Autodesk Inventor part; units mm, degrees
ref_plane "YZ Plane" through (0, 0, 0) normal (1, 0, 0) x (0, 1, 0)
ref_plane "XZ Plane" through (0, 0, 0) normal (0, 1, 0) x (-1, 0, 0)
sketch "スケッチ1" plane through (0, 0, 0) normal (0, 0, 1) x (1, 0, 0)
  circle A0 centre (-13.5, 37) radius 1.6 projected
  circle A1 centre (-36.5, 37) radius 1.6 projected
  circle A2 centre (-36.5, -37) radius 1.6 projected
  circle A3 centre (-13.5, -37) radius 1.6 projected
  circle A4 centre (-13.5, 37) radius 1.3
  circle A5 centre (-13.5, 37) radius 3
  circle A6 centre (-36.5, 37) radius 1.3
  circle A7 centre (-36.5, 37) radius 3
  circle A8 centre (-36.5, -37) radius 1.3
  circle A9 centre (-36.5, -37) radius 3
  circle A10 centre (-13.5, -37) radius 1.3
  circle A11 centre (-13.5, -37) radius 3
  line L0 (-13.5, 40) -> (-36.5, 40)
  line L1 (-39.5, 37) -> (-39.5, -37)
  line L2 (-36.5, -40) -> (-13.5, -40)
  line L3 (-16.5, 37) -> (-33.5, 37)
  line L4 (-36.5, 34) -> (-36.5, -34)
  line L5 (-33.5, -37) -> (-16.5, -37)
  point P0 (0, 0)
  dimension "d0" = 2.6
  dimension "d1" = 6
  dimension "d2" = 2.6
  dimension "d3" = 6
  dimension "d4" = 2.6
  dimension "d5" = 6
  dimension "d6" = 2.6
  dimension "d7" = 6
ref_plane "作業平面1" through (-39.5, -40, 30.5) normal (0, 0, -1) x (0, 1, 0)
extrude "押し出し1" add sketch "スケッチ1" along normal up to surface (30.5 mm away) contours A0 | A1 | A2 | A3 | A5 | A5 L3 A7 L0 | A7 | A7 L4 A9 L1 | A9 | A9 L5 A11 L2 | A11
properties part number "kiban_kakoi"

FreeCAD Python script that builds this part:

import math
import FreeCAD as App
import Part
import Sketcher

doc = App.newDocument("Part")
body = doc.addObject("PartDesign::Body", "Body")

# Sketch on XY plane
sketch1 = body.newObject("Sketcher::SketchObject", "Sketch")
sketch1.AttachmentSupport = (doc.getObject("XY_Plane"), [""])
sketch1.MapMode = "FlatFace"
sketch1.addGeometry([
    Part.ArcOfCircle(Part.Circle(App.Vector(-13.5, 37, 0), App.Vector(0, 0, 1), 3), math.radians(180), math.radians(450)),  # 0
    Part.LineSegment(App.Vector(-13.5, 40, 0), App.Vector(-36.5, 40, 0)),  # 1
    Part.ArcOfCircle(Part.Circle(App.Vector(-36.5, 37, 0), App.Vector(0, 0, 1), 3), math.radians(90), math.radians(180)),  # 2
    Part.LineSegment(App.Vector(-39.5, 37, 0), App.Vector(-39.5, -37, 0)),  # 3
    Part.ArcOfCircle(Part.Circle(App.Vector(-36.5, -37, 0), App.Vector(0, 0, 1), 3), math.radians(180), math.radians(270)),  # 4
    Part.LineSegment(App.Vector(-36.5, -40, 0), App.Vector(-13.5, -40, 0)),  # 5
    Part.ArcOfCircle(Part.Circle(App.Vector(-13.5, -37, 0), App.Vector(0, 0, 1), 3), math.radians(-90), math.radians(180)),  # 6
    Part.LineSegment(App.Vector(-16.5, -37, 0), App.Vector(-33.5, -37, 0)),  # 7
    Part.ArcOfCircle(Part.Circle(App.Vector(-36.5, -37, 0), App.Vector(0, 0, 1), 3), math.radians(0), math.radians(90)),  # 8
    Part.LineSegment(App.Vector(-36.5, -34, 0), App.Vector(-36.5, 34, 0)),  # 9
    Part.ArcOfCircle(Part.Circle(App.Vector(-36.5, 37, 0), App.Vector(0, 0, 1), 3), math.radians(-90), math.radians(0)),  # 10
    Part.LineSegment(App.Vector(-33.5, 37, 0), App.Vector(-16.5, 37, 0)),  # 11
    Part.Circle(App.Vector(-13.5, 37, 0), App.Vector(0, 0, 1), 1.3),  # 12
    Part.Circle(App.Vector(-36.5, 37, 0), App.Vector(0, 0, 1), 1.3),  # 13
    Part.Circle(App.Vector(-36.5, -37, 0), App.Vector(0, 0, 1), 1.3),  # 14
    Part.Circle(App.Vector(-13.5, -37, 0), App.Vector(0, 0, 1), 1.3),  # 15
], False)
sketch1.addConstraint([
    Sketcher.Constraint("Tangent", 0, 2, 1, 1),
    Sketcher.Constraint("Tangent", 1, 2, 2, 1),
    Sketcher.Constraint("Tangent", 2, 2, 3, 1),
    Sketcher.Constraint("Tangent", 3, 2, 4, 1),
    Sketcher.Constraint("Tangent", 4, 2, 5, 1),
    Sketcher.Constraint("Tangent", 5, 2, 6, 1),
    Sketcher.Constraint("Coincident", 6, 2, 7, 1),
    Sketcher.Constraint("Coincident", 7, 2, 8, 1),
    Sketcher.Constraint("Coincident", 8, 2, 9, 1),
    Sketcher.Constraint("Coincident", 9, 2, 10, 1),
    Sketcher.Constraint("Coincident", 10, 2, 11, 1),
    Sketcher.Constraint("Coincident", 11, 2, 0, 1),
    Sketcher.Constraint("Horizontal", 1),
    Sketcher.Constraint("Vertical", 3),
    Sketcher.Constraint("Horizontal", 5),
    Sketcher.Constraint("Horizontal", 7),
    Sketcher.Constraint("Vertical", 9),
    Sketcher.Constraint("Horizontal", 11),
    Sketcher.Constraint("Coincident", 8, 3, 4, 3),
    Sketcher.Constraint("Coincident", 10, 3, 2, 3),
    Sketcher.Constraint("Coincident", 12, 3, 0, 3),
    Sketcher.Constraint("Coincident", 13, 3, 2, 3),
    Sketcher.Constraint("Coincident", 14, 3, 4, 3),
    Sketcher.Constraint("Coincident", 15, 3, 6, 3),
    Sketcher.Constraint("Equal", 0, 2),
    Sketcher.Constraint("Equal", 2, 4),
    Sketcher.Constraint("Equal", 4, 6),
    Sketcher.Constraint("Equal", 6, 8),
    Sketcher.Constraint("Equal", 8, 10),
    Sketcher.Constraint("Equal", 12, 13),
    Sketcher.Constraint("Equal", 13, 14),
    Sketcher.Constraint("Equal", 14, 15),
    Sketcher.Constraint("Symmetric", 0, 3, 6, 3, -1),
    Sketcher.Constraint("Horizontal", 3, 2, 6, 2),
    Sketcher.Constraint("Horizontal", 2, 2, 10, 2),
    Sketcher.Constraint("Vertical", 4, 2, 8, 2),
    Sketcher.Constraint("Radius", 0, 3.0),
    Sketcher.Constraint("Diameter", 12, 2.6),
    Sketcher.Constraint("DistanceX", 1, 2, 1, 1, 23.0),
    Sketcher.Constraint("DistanceY", 3, 2, 3, 1, 74.0),
    Sketcher.Constraint("DistanceX", 0, 3, -1, 1, 13.5),
])
pad1 = body.newObject("PartDesign::Pad", "Pad")
pad1.Profile = sketch1
pad1.Length = 30.5

doc.recompute()
